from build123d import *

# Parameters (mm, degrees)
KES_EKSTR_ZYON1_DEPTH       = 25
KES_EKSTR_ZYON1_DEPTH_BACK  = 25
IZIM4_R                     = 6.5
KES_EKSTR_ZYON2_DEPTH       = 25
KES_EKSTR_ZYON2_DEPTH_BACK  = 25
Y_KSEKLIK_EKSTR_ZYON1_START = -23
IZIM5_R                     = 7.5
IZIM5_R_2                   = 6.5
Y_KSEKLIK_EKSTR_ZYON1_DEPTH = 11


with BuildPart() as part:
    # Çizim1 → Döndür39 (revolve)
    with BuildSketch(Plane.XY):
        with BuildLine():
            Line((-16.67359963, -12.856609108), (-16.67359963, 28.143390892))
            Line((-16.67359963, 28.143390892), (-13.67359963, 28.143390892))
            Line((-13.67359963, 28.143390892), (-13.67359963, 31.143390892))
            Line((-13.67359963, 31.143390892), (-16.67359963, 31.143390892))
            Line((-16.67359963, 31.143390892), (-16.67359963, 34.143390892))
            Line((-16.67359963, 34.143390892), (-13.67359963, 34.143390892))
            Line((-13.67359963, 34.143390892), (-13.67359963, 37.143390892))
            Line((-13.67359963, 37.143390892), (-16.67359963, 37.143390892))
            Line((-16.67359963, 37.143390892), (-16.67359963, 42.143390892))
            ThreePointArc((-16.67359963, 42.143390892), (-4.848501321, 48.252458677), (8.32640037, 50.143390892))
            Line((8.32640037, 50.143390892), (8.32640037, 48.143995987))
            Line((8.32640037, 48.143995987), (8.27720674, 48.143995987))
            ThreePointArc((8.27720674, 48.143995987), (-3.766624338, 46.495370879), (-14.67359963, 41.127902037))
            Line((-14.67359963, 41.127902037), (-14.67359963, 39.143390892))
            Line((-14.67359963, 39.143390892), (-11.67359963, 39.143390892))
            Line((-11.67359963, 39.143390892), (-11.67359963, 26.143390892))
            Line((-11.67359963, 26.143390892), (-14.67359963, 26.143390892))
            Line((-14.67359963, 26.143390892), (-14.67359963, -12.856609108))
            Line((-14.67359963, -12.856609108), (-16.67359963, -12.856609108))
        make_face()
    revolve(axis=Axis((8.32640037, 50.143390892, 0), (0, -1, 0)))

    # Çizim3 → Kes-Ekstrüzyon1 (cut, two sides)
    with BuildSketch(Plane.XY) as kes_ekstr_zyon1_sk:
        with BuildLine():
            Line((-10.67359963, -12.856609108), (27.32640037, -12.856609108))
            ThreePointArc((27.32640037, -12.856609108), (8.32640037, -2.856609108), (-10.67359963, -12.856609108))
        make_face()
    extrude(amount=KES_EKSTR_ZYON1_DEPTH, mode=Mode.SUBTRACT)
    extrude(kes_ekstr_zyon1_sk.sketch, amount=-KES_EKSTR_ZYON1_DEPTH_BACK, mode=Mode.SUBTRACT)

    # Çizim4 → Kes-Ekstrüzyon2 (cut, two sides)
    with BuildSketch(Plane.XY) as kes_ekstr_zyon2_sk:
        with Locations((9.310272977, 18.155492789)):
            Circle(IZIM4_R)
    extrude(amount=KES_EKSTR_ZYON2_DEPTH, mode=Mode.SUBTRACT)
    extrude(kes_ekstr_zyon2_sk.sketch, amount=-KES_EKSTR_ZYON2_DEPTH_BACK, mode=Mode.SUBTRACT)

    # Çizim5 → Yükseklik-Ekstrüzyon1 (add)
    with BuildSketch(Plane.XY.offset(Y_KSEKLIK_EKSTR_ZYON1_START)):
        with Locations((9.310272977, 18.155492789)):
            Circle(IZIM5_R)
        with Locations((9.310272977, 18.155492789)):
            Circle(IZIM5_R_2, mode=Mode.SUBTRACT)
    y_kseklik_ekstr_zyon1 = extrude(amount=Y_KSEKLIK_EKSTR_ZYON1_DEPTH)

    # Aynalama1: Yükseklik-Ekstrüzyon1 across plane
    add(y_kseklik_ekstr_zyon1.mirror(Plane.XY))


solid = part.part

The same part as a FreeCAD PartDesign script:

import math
import FreeCAD as App
import Part
import Sketcher
from FreeCAD import Vector
Q = App.Units.Quantity

doc = App.newDocument("Part")
body = doc.addObject("PartDesign::Body", "Body")

# Sketch on XY plane
sketch1 = body.newObject("Sketcher::SketchObject", "Sketch")
sketch1.AttachmentSupport = (doc.getObject("XY_Plane"), [""])
sketch1.MapMode = "FlatFace"
sketch1.addGeometry([
    Part.LineSegment(Vector(-16.674, 28.143, 0), Vector(-16.674, -12.857, 0)),  # 0
    Part.LineSegment(Vector(-16.674, -12.857, 0), Vector(-14.674, -12.857, 0)),  # 1
    Part.LineSegment(Vector(-14.674, -12.857, 0), Vector(-14.674, 26.143, 0)),  # 2
    Part.LineSegment(Vector(-14.674, 26.143, 0), Vector(-11.674, 26.143, 0)),  # 3
    Part.LineSegment(Vector(-11.674, 26.143, 0), Vector(-11.674, 39.143, 0)),  # 4
    Part.LineSegment(Vector(-11.674, 39.143, 0), Vector(-14.674, 39.143, 0)),  # 5
    Part.LineSegment(Vector(-14.674, 39.143, 0), Vector(-14.674, 41.128, 0)),  # 6
    Part.ArcOfCircle(Part.Circle(Vector(7.343, 10.155, 0), Vector(0, 0, 1), 38), math.radians(89), math.radians(125)),  # 7
    Part.LineSegment(Vector(8.277, 48.144, 0), Vector(8.326, 48.144, 0)),  # 8
    Part.LineSegment(Vector(8.326, 48.144, 0), Vector(8.326, 50.143, 0)),  # 9
    Part.ArcOfCircle(Part.Circle(Vector(7.343, 10.155, 0), Vector(0, 0, 1), 40), math.radians(89), math.radians(127)),  # 10
    Part.LineSegment(Vector(-16.674, 42.143, 0), Vector(-16.674, 37.143, 0)),  # 11
    Part.LineSegment(Vector(-16.674, 37.143, 0), Vector(-13.674, 37.143, 0)),  # 12
    Part.LineSegment(Vector(-13.674, 37.143, 0), Vector(-13.674, 34.143, 0)),  # 13
    Part.LineSegment(Vector(-13.674, 34.143, 0), Vector(-16.674, 34.143, 0)),  # 14
    Part.LineSegment(Vector(-16.674, 34.143, 0), Vector(-16.674, 31.143, 0)),  # 15
    Part.LineSegment(Vector(-16.674, 31.143, 0), Vector(-13.674, 31.143, 0)),  # 16
    Part.LineSegment(Vector(-13.674, 31.143, 0), Vector(-13.674, 28.143, 0)),  # 17
    Part.LineSegment(Vector(-13.674, 28.143, 0), Vector(-16.674, 28.143, 0)),  # 18
], False)
sketch1.addGeometry(Part.LineSegment(Vector(8.326, 50.143, 0), Vector(8.326, -12.857, 0)), True)  # axis
sketch1.addConstraint([
    Sketcher.Constraint("Coincident", 0, 2, 1, 1),
    Sketcher.Constraint("Coincident", 1, 2, 2, 1),
    Sketcher.Constraint("Coincident", 2, 2, 3, 1),
    Sketcher.Constraint("Coincident", 3, 2, 4, 1),
    Sketcher.Constraint("Coincident", 4, 2, 5, 1),
    Sketcher.Constraint("Coincident", 5, 2, 6, 1),
    Sketcher.Constraint("Coincident", 6, 2, 7, 2),
    Sketcher.Constraint("Coincident", 7, 1, 8, 1),
    Sketcher.Constraint("Coincident", 8, 2, 9, 1),
    Sketcher.Constraint("Coincident", 9, 2, 10, 1),
    Sketcher.Constraint("Coincident", 10, 2, 11, 1),
    Sketcher.Constraint("Coincident", 11, 2, 12, 1),
    Sketcher.Constraint("Coincident", 12, 2, 13, 1),
    Sketcher.Constraint("Coincident", 13, 2, 14, 1),
    Sketcher.Constraint("Coincident", 14, 2, 15, 1),
    Sketcher.Constraint("Coincident", 15, 2, 16, 1),
    Sketcher.Constraint("Coincident", 16, 2, 17, 1),
    Sketcher.Constraint("Coincident", 17, 2, 18, 1),
    Sketcher.Constraint("Coincident", 18, 2, 0, 1),
    Sketcher.Constraint("Vertical", 0),
    Sketcher.Constraint("Horizontal", 1),
    Sketcher.Constraint("Vertical", 2),
    Sketcher.Constraint("Horizontal", 3),
    Sketcher.Constraint("Vertical", 4),
    Sketcher.Constraint("Horizontal", 5),
    Sketcher.Constraint("Vertical", 6),
    Sketcher.Constraint("Horizontal", 8),
    Sketcher.Constraint("Vertical", 9),
    Sketcher.Constraint("Vertical", 11),
    Sketcher.Constraint("Horizontal", 12),
    Sketcher.Constraint("Vertical", 13),
    Sketcher.Constraint("Horizontal", 14),
    Sketcher.Constraint("Vertical", 15),
    Sketcher.Constraint("Horizontal", 16),
    Sketcher.Constraint("Vertical", 17),
    Sketcher.Constraint("Horizontal", 18),
    Sketcher.Constraint("Vertical", 19),
    Sketcher.Constraint("Coincident", 10, 3, 7, 3),
    Sketcher.Constraint("Coincident", 19, 1, 9, 2),
    Sketcher.Constraint("Horizontal", 1, 2, 19, 2),
    Sketcher.Constraint("Vertical", 2, 2, 5, 2),
    Sketcher.Constraint("Vertical", 0, 2, 10, 2),
    Sketcher.Constraint("Vertical", 11, 2, 14, 2),
    Sketcher.Constraint("Vertical", 13, 2, 16, 2),
    Sketcher.Constraint("Equal", 5, 12),
    Sketcher.Constraint("Equal", 18, 13),
    Sketcher.Constraint("Equal", 13, 15),
    Sketcher.Constraint("Equal", 15, 17),
    Sketcher.Constraint("Radius", 7, Q("38 mm")),
    Sketcher.Constraint("Radius", 10, Q("40 mm")),
    Sketcher.Constraint("DistanceX", 1, 1, 1, 2, Q("2 mm")),
    Sketcher.Constraint("DistanceX", 3, 1, 3, 2, Q("3 mm")),
    Sketcher.Constraint("DistanceY", 0, 2, 0, 1, Q("41 mm")),
    Sketcher.Constraint("DistanceY", 2, 1, 2, 2, Q("39 mm")),
    Sketcher.Constraint("DistanceY", 4, 1, 4, 2, Q("13 mm")),
    Sketcher.Constraint("DistanceY", 11, 2, 11, 1, Q("5 mm")),
    Sketcher.Constraint("DistanceY", 19, 2, 19, 1, Q("63 mm")),
    Sketcher.Constraint("DistanceX", 4, 2, 8, 2, Q("20 mm")),
    Sketcher.Constraint("DistanceX", 0, 2, -1, 1, Q("16.6736 mm")),
    Sketcher.Constraint("DistanceX", 8, 1, 8, 2, Q("0.049194 mm")),
    Sketcher.Constraint("DistanceY", 0, 2, -1, 1, Q("12.856609 mm")),
])
revolution = body.newObject("PartDesign::Revolution", "Revolution")
revolution.Profile = sketch1
revolution.ReferenceAxis = (sketch1, ["Axis0"])
revolution.Angle = 360

# Sketch on XY plane
sketch2 = body.newObject("Sketcher::SketchObject", "Sketch001")
sketch2.AttachmentSupport = (doc.getObject("XY_Plane"), [""])
sketch2.MapMode = "FlatFace"
sketch2.addGeometry([
    Part.LineSegment(Vector(-11, -13, 0), Vector(27, -13, 0)),
    Part.ArcOfCircle(Part.Circle(Vector(8, -26, 0), Vector(0, 0, 1), 23), math.radians(34), math.radians(146)),
], False)
sketch2.addConstraint([
    Sketcher.Constraint("Coincident", 0, 1, 1, 2),
    Sketcher.Constraint("Coincident", 1, 1, 0, 2),
    Sketcher.Constraint("Horizontal", 0),
    Sketcher.Constraint("DistanceX", 0, 1, 0, 2, Q("38 mm")),
    Sketcher.Constraint("Radius", 1, Q("23.05 mm")),
    Sketcher.Constraint("DistanceX", -1, 1, 1, 3, Q("8.3264 mm")),
    Sketcher.Constraint("DistanceY", 1, 3, -1, 1, Q("25.906609 mm")),
])
pocket1 = body.newObject("PartDesign::Pocket", "Pocket")
pocket1.Profile = sketch2
pocket1.Type = "ThroughAll"
pocket1.Midplane = True

# Sketch on XY plane
sketch3 = body.newObject("Sketcher::SketchObject", "Sketch002")
sketch3.AttachmentSupport = (doc.getObject("XY_Plane"), [""])
sketch3.MapMode = "FlatFace"
sketch3.addGeometry(Part.Circle(Vector(9, 18, 0), Vector(0, 0, 1), 6), False)
sketch3.addConstraint([
    Sketcher.Constraint("Diameter", 0, Q("13 mm")),
    Sketcher.Constraint("DistanceX", -1, 1, 0, 3, Q("9.310273 mm")),
    Sketcher.Constraint("DistanceY", -1, 1, 0, 3, Q("18.155493 mm")),
])
pocket2 = body.newObject("PartDesign::Pocket", "Pocket001")
pocket2.Profile = sketch3
pocket2.Type = "ThroughAll"
pocket2.Midplane = True

# Sketch on XY plane
sketch4 = body.newObject("Sketcher::SketchObject", "Sketch003")
sketch4.AttachmentSupport = (doc.getObject("XY_Plane"), [""])
sketch4.MapMode = "FlatFace"
sketch4.AttachmentOffset = App.Placement(Vector(0, 0, -23), App.Rotation())
sketch4.addGeometry([
    Part.Circle(Vector(9, 18, 0), Vector(0, 0, 1), 8),
    Part.Circle(Vector(9, 18, 0), Vector(0, 0, 1), 6),
], False)
sketch4.addConstraint([
    Sketcher.Constraint("Coincident", 1, 3, 0, 3),
    Sketcher.Constraint("Diameter", 0, Q("15 mm")),
    Sketcher.Constraint("Diameter", 1, Q("13 mm")),
    Sketcher.Constraint("DistanceX", -1, 1, 0, 3, Q("9.310273 mm")),
    Sketcher.Constraint("DistanceY", -1, 1, 0, 3, Q("18.155493 mm")),
])
pad1 = body.newObject("PartDesign::Pad", "Pad")
pad1.Profile = sketch4
pad1.Length = 11
doc.recompute()

mirrored = body.newObject("PartDesign::Mirrored", "Mirrored")
mirrored.Originals = [pad1]
mirrored.MirrorPlane = (doc.getObject("XY_Plane"), [""])
body.Tip = mirrored

doc.recompute()
